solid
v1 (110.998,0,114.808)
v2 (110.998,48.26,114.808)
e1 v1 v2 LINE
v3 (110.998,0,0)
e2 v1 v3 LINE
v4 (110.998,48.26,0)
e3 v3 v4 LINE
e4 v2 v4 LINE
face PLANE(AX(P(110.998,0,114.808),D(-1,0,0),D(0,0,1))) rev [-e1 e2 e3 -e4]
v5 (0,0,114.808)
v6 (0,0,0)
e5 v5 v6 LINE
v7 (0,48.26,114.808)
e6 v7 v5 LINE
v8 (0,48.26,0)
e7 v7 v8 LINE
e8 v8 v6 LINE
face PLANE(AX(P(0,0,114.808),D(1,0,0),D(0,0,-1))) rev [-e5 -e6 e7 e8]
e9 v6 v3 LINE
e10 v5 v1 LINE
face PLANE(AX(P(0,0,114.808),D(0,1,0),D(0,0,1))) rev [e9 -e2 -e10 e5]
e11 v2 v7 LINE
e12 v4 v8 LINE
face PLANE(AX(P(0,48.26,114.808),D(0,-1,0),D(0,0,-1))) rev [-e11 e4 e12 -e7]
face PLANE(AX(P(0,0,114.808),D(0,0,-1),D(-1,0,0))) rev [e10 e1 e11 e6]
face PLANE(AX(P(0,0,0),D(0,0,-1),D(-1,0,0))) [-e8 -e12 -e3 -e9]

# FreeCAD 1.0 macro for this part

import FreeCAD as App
import Part
import Sketcher

V = App.Vector
Q = App.Units.Quantity


def add_polygon(sketch, points):
    """Adds a closed chain of lines whose ends are joined by coincident constraints."""
    first, n = sketch.GeometryCount, len(points)
    for a, b in zip(points, points[1:] + points[:1]):
        sketch.addGeometry(Part.LineSegment(App.Vector(*a, 0), App.Vector(*b, 0)), False)
    for i in range(n):
        sketch.addConstraint(Sketcher.Constraint("Coincident", first + i, 2, first + (i + 1) % n, 1))

doc = App.newDocument("Part")
params = doc.addObject("Spreadsheet::Sheet", "Params")
for row, (alias, value) in enumerate([
    ("sketch1_height", "1.9 in"),
    ("sketch1_width", "4.37 in"),
    ("pad1_length", "4.52 in"),
], start=1):
    params.set(f"A{row}", alias)
    params.set(f"B{row}", "=" + value)
    params.setAlias(f"B{row}", alias)

body = doc.addObject("PartDesign::Body", "Body")

sketch1 = doc.addObject("Sketcher::SketchObject", "Sketch")
body.addObject(sketch1)
sketch1.AttachmentSupport = (doc.XY_Plane, [""])
sketch1.MapMode = "FlatFace"
add_polygon(sketch1, [(0, 48), (0, 0), (111, 0), (111, 48)])
sketch1.addConstraint([
    Sketcher.Constraint("Vertical", 0),
    Sketcher.Constraint("Horizontal", 1),
    Sketcher.Constraint("Vertical", 2),
    Sketcher.Constraint("Horizontal", 3),
    Sketcher.Constraint("Coincident", 0, 2, -1, 1),
    Sketcher.Constraint("DistanceY", 0, 2, 0, 1, Q("1.9 in")),
    Sketcher.Constraint("DistanceX", 1, 1, 1, 2, Q("4.37 in")),
])
sketch1.setExpression("Constraints[9]", "Params.sketch1_height")
sketch1.setExpression("Constraints[10]", "Params.sketch1_width")
pad1 = doc.addObject("PartDesign::Pad", "Pad")
body.addObject(pad1)
pad1.Profile = sketch1
pad1.setExpression("Length", "Params.pad1_length")

doc.recompute()
